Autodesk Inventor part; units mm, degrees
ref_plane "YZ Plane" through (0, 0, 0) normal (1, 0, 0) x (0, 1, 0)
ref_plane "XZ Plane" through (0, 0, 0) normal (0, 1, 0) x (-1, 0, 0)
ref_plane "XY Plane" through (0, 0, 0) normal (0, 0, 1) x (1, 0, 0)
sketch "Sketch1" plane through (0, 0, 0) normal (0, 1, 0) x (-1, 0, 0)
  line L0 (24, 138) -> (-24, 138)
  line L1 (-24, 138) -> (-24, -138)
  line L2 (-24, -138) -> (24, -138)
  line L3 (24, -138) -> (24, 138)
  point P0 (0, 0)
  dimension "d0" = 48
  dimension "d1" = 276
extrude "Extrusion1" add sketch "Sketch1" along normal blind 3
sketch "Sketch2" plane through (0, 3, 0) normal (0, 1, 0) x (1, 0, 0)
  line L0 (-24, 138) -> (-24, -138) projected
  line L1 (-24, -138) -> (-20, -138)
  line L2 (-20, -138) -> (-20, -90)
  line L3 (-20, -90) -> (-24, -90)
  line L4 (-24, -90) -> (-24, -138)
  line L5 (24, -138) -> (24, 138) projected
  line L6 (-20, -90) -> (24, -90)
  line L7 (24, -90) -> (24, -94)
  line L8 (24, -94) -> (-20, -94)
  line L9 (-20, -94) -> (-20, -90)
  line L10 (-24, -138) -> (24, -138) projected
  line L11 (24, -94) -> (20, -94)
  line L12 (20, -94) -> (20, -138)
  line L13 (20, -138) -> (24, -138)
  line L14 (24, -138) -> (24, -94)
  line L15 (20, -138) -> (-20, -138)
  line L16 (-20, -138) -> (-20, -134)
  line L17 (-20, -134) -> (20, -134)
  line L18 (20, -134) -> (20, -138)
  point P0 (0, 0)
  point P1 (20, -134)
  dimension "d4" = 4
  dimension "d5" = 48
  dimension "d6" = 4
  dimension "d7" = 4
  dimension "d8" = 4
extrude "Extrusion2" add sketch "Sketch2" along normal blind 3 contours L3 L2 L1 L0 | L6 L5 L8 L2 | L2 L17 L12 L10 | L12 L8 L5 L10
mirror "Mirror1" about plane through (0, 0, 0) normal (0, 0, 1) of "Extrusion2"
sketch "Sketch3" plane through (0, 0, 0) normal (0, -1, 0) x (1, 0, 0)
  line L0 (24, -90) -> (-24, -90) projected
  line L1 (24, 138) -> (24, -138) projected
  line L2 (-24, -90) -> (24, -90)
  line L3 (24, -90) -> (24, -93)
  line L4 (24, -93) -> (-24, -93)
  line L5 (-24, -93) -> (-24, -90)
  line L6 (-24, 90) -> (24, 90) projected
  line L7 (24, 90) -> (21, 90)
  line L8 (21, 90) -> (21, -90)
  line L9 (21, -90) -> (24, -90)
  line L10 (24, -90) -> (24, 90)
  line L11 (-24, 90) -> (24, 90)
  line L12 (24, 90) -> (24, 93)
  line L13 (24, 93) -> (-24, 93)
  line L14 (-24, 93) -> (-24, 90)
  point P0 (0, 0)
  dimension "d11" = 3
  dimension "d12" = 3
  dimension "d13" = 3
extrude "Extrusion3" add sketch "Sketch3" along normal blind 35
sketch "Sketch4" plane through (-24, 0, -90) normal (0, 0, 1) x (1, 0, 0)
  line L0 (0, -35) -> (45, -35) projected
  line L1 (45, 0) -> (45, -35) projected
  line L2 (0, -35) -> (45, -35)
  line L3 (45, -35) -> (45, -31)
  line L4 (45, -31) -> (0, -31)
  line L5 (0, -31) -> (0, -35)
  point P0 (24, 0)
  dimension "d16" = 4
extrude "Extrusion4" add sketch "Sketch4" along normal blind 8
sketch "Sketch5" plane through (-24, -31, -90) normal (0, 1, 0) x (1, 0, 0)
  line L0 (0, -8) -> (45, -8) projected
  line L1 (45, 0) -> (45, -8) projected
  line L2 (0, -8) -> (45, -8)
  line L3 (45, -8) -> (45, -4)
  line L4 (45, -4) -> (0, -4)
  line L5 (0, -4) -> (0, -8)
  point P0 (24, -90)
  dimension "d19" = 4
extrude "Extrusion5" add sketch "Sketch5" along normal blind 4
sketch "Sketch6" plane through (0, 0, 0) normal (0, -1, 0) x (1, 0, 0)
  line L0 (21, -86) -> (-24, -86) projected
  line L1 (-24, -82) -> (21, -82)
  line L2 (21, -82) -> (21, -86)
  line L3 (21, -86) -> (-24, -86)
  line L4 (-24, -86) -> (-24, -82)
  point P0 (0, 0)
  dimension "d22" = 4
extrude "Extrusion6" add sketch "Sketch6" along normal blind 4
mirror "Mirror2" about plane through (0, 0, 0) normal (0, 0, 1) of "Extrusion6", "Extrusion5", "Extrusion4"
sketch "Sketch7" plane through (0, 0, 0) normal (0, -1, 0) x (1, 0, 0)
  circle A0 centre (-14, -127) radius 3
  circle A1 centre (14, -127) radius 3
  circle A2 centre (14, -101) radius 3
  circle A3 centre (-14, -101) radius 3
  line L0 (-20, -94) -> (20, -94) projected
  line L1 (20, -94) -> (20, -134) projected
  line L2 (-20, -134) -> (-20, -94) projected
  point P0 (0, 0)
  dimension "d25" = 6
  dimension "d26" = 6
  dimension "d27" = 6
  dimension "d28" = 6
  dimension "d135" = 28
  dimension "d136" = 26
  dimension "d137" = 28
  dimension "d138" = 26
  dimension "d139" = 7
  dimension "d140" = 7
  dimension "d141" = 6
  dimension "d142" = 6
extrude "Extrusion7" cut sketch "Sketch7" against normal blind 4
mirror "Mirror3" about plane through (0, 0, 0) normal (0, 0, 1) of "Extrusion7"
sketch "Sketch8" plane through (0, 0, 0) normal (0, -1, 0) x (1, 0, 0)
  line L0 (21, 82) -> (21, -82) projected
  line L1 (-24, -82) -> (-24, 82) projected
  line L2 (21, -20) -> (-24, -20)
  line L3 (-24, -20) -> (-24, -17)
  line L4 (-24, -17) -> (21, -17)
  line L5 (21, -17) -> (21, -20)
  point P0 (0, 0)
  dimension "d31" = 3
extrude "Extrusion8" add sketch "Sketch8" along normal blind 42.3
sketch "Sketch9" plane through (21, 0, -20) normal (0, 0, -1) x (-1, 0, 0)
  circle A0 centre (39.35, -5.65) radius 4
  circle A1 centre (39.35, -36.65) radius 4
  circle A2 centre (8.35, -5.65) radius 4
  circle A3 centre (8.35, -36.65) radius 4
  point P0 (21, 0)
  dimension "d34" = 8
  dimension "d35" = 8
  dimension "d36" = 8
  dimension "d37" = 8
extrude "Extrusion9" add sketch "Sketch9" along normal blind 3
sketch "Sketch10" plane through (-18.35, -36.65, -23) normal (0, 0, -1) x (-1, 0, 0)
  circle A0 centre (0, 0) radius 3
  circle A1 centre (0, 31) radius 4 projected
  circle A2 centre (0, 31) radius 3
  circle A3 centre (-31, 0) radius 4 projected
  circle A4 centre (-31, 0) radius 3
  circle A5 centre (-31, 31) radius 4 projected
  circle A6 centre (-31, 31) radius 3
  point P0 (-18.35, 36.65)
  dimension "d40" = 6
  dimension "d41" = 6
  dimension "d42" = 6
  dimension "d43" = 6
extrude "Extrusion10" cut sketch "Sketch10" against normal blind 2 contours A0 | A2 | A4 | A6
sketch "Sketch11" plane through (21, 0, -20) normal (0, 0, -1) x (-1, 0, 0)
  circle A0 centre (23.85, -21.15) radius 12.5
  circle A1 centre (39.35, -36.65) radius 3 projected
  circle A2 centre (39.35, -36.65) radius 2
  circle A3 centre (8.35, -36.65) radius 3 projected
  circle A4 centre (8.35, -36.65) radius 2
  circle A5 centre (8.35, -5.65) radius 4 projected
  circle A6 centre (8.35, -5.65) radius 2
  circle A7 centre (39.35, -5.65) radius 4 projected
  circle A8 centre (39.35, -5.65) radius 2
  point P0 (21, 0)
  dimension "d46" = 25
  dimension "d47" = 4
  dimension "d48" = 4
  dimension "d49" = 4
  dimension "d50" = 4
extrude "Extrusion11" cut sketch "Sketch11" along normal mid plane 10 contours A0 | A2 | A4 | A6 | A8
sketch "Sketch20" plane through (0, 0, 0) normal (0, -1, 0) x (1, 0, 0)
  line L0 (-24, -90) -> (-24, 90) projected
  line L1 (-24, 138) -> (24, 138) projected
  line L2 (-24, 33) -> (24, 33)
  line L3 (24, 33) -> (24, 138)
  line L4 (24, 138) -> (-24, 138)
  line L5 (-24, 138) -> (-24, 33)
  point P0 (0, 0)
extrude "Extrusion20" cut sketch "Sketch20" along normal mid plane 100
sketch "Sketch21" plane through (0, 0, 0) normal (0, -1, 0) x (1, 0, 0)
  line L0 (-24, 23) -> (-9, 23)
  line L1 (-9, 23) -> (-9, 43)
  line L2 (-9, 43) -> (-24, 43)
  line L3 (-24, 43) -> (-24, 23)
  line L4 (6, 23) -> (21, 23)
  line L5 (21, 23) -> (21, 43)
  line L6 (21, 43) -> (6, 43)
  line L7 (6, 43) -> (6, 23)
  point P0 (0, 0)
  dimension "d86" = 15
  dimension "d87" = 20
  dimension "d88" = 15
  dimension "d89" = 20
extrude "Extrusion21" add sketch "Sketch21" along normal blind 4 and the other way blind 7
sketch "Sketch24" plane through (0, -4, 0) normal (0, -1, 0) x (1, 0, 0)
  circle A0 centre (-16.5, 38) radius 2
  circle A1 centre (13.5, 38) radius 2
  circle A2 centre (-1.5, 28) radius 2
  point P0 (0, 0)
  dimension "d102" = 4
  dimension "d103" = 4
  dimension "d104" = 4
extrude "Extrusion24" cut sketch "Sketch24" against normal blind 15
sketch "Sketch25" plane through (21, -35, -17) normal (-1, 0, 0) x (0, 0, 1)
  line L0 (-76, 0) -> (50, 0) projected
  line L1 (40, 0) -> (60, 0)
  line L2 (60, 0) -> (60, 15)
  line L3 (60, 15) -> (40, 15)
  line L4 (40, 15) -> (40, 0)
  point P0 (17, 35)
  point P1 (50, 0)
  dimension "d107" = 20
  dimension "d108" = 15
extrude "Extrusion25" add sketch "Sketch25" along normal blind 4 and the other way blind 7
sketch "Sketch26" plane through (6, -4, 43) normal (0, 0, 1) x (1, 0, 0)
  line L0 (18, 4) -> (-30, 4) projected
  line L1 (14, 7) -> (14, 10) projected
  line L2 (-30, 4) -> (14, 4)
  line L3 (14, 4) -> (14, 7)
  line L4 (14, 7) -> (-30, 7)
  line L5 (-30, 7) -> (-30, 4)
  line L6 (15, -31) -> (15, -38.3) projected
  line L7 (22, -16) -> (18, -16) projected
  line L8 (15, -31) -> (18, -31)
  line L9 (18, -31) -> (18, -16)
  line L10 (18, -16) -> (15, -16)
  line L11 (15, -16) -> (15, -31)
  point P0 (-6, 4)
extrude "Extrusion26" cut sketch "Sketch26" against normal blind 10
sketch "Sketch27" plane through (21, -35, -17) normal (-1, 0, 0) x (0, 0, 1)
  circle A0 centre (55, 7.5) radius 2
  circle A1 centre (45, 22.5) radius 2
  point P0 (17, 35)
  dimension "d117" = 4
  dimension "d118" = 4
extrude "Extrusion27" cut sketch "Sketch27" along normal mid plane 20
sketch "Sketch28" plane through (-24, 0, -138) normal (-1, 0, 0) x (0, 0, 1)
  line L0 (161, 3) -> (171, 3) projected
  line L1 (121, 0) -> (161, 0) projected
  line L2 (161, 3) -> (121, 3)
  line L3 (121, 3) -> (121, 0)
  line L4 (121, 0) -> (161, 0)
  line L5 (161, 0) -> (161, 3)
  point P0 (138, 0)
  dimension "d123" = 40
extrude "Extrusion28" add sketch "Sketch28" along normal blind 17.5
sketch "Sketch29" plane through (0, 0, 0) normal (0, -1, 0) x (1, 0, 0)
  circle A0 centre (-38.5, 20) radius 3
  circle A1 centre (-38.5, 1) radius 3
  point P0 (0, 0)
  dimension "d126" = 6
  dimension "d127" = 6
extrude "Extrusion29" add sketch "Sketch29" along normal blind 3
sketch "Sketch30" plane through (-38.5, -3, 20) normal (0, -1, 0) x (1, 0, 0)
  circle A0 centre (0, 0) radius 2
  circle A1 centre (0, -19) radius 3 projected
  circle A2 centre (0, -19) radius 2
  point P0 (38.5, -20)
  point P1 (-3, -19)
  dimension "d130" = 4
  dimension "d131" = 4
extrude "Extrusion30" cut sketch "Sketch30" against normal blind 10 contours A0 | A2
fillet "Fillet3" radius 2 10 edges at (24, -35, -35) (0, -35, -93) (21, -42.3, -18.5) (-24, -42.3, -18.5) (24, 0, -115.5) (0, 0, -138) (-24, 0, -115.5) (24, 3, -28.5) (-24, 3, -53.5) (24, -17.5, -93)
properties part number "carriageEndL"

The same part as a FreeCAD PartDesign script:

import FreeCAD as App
import Part
import Sketcher


def edges_at(feature, points):
    """Names of the edges that pass closest to the given points."""
    edges = feature.Shape.Edges
    near = lambda p: min(range(len(edges)), key=lambda i: edges[i].distToShape(Part.Vertex(*p))[0])
    return sorted({f"Edge{near(p) + 1}" for p in points})


def add_polygon(sketch, points):
    """Adds a closed chain of lines whose ends are joined by coincident constraints."""
    first, n = sketch.GeometryCount, len(points)
    for a, b in zip(points, points[1:] + points[:1]):
        sketch.addGeometry(Part.LineSegment(App.Vector(*a, 0), App.Vector(*b, 0)), False)
    for i in range(n):
        sketch.addConstraint(Sketcher.Constraint("Coincident", first + i, 2, first + (i + 1) % n, 1))

doc = App.newDocument("Part")
params = doc.addObject("Spreadsheet::Sheet", "Params")
for row, (alias, value) in enumerate([
    ("sketch1_width", "48 mm"),
    ("sketch1_height", "276 mm"),
    ("pad1_length", "3 mm"),
    ("sketch2_width", "48 mm"),
    ("pad2_length", "3 mm"),
    ("sketch3_height", "3 mm"),
    ("sketch3_width", "48 mm"),
    ("sketch3_height2", "186 mm"),
    ("pad3_length", "35 mm"),
    ("sketch4_height", "4 mm"),
    ("sketch4_width", "45 mm"),
    ("pad4_length", "8 mm"),
    ("sketch5_height", "4 mm"),
    ("sketch5_width", "45 mm"),
    ("pad5_length", "4 mm"),
    ("sketch6_height", "4 mm"),
    ("sketch6_width", "45 mm"),
    ("pad6_length", "4 mm"),
    ("sketch7_diameter", "6 mm"),
    ("pocket1_length", "4 mm"),
    ("sketch8_height", "3 mm"),
    ("sketch8_width", "45 mm"),
    ("pad7_length", "42.3 mm"),
    ("sketch9_diameter", "8 mm"),
    ("pad8_length", "3 mm"),
    ("sketch10_diameter", "6 mm"),
    ("pocket2_length", "2 mm"),
    ("sketch11_diameter", "25 mm"),
    ("sketch11_diameter2", "4 mm"),
    ("pocket3_length", "10 mm"),
    ("sketch12_width", "48 mm"),
    ("sketch12_height", "105 mm"),
    ("pocket4_length", "100 mm"),
    ("sketch13_width", "15 mm"),
    ("sketch13_height", "20 mm"),
    ("pad9_length", "4 mm"),
    ("pad9_length2", "7 mm"),
    ("sketch14_diameter", "4 mm"),
    ("pocket5_length", "15 mm"),
    ("sketch15_width", "15 mm"),
    ("sketch15_height", "20 mm"),
    ("pad10_length", "4 mm"),
    ("pad10_length2", "7 mm"),
    ("sketch16_width", "44 mm"),
    ("sketch16_width2", "3 mm"),
    ("sketch16_height", "15 mm"),
    ("pocket6_length", "10 mm"),
    ("sketch17_diameter", "4 mm"),
    ("pocket7_length", "20 mm"),
    ("sketch18_height", "40 mm"),
    ("sketch18_width", "3 mm"),
    ("pad11_length", "17.5 mm"),
    ("sketch19_diameter", "6 mm"),
    ("pad12_length", "3 mm"),
    ("sketch20_diameter", "4 mm"),
    ("pocket8_length", "10 mm"),
    ("fillet_radius", "2 mm"),
], start=1):
    params.set(f"A{row}", alias)
    params.set(f"B{row}", "=" + value)
    params.setAlias(f"B{row}", alias)

body = doc.addObject("PartDesign::Body", "Body")

# Sketch on XZ plane
sketch1 = body.newObject("Sketcher::SketchObject", "Sketch")
sketch1.AttachmentSupport = (doc.getObject("XZ_Plane"), [""])
sketch1.MapMode = "FlatFace"
add_polygon(sketch1, [(-24, -138), (-24, 138), (24, 138), (24, -138)])  # lines 0-3
sketch1.addConstraint([
    Sketcher.Constraint("Vertical", 0),
    Sketcher.Constraint("Horizontal", 1),
    Sketcher.Constraint("Vertical", 2),
    Sketcher.Constraint("Horizontal", 3),
    Sketcher.Constraint("Symmetric", 0, 2, 2, 2, -1, 1),
    Sketcher.Constraint("DistanceX", 1, 1, 1, 2, 48.0),
    Sketcher.Constraint("DistanceY", 0, 1, 0, 2, 276.0),
])
sketch1.setExpression("Constraints[9]", "Params.sketch1_width")
sketch1.setExpression("Constraints[10]", "Params.sketch1_height")
pad1 = body.newObject("PartDesign::Pad", "Pad")
pad1.Profile = sketch1
pad1.setExpression("Length", "Params.pad1_length")
pad1.Reversed = True

# Sketch on XZ plane
sketch2 = body.newObject("Sketcher::SketchObject", "Sketch001")
sketch2.AttachmentSupport = (doc.getObject("XZ_Plane"), [""])
sketch2.MapMode = "FlatFace"
sketch2.AttachmentOffset = App.Placement(App.Vector(0, 0, -3), App.Rotation())
add_polygon(sketch2, [(-24, 90), (-24, 138), (24, 138), (24, 90)])  # lines 0-3
add_polygon(sketch2, [(-20, 134), (-20, 94), (20, 94), (20, 134)])  # lines 4-7
sketch2.addConstraint([
    Sketcher.Constraint("Vertical", 0),
    Sketcher.Constraint("Horizontal", 1),
    Sketcher.Constraint("Vertical", 2),
    Sketcher.Constraint("Horizontal", 3),
    Sketcher.Constraint("Vertical", 4),
    Sketcher.Constraint("Horizontal", 5),
    Sketcher.Constraint("Vertical", 6),
    Sketcher.Constraint("Horizontal", 7),
    Sketcher.Constraint("Equal", 3, 0),
    Sketcher.Constraint("Equal", 7, 4),
    Sketcher.Constraint("DistanceX", 1, 1, 1, 2, 48.0),
    Sketcher.Constraint("DistanceX", 3, 2, 4, 2, 4.0),
    Sketcher.Constraint("DistanceY", 3, 2, 4, 2, 4.0),
    Sketcher.Constraint("DistanceX", 5, 2, 2, 2, 4.0),
    Sketcher.Constraint("DistanceX", 0, 2, -1, 1, 24.0),
    Sketcher.Constraint("DistanceY", -1, 1, 0, 2, 138.0),
])
sketch2.setExpression("Constraints[18]", "Params.sketch2_width")
pad2 = body.newObject("PartDesign::Pad", "Pad001")
pad2.Profile = sketch2
pad2.setExpression("Length", "Params.pad2_length")
pad2.Reversed = True
doc.recompute()

mirrored = body.newObject("PartDesign::Mirrored", "Mirrored")
mirrored.Originals = [pad2]
mirrored.MirrorPlane = (doc.getObject("XY_Plane"), [""])
body.Tip = mirrored

# Sketch on XZ plane
sketch3 = body.newObject("Sketcher::SketchObject", "Sketch002")
sketch3.AttachmentSupport = (doc.getObject("XZ_Plane"), [""])
sketch3.MapMode = "FlatFace"
add_polygon(sketch3, [(24, -93), (24, 93), (-24, 93), (-24, 90), (21, 90), (21, -90), (-24, -90), (-24, -93)])  # lines 0-7
sketch3.addConstraint([
    Sketcher.Constraint("Vertical", 0),
    Sketcher.Constraint("Horizontal", 1),
    Sketcher.Constraint("Vertical", 2),
    Sketcher.Constraint("Horizontal", 3),
    Sketcher.Constraint("Vertical", 4),
    Sketcher.Constraint("Horizontal", 5),
    Sketcher.Constraint("Vertical", 6),
    Sketcher.Constraint("Horizontal", 7),
    Sketcher.Constraint("Symmetric", 0, 2, 6, 2, -1, 1),
    Sketcher.Constraint("Symmetric", 2, 2, 5, 2, -1),
    Sketcher.Constraint("DistanceY", 2, 2, 2, 1, 3.0),
    Sketcher.Constraint("DistanceX", 3, 2, 0, 2, 3.0),
    Sketcher.Constraint("DistanceX", 1, 2, 1, 1, 48.0),
    Sketcher.Constraint("DistanceY", 0, 1, 0, 2, 186.0),
])
sketch3.setExpression("Constraints[18]", "Params.sketch3_height")
sketch3.setExpression("Constraints[20]", "Params.sketch3_width")
sketch3.setExpression("Constraints[21]", "Params.sketch3_height2")
pad3 = body.newObject("PartDesign::Pad", "Pad002")
pad3.Profile = sketch3
pad3.setExpression("Length", "Params.pad3_length")

# Sketch on XY plane
sketch4 = body.newObject("Sketcher::SketchObject", "Sketch003")
sketch4.AttachmentSupport = (doc.getObject("XY_Plane"), [""])
sketch4.MapMode = "FlatFace"
sketch4.AttachmentOffset = App.Placement(App.Vector(0, 0, -90), App.Rotation())
add_polygon(sketch4, [(-24, -31), (-24, -35), (21, -35), (21, -31)])  # lines 0-3
sketch4.addConstraint([
    Sketcher.Constraint("Vertical", 0),
    Sketcher.Constraint("Horizontal", 1),
    Sketcher.Constraint("Vertical", 2),
    Sketcher.Constraint("Horizontal", 3),
    Sketcher.Constraint("DistanceY", 0, 2, 0, 1, 4.0),
    Sketcher.Constraint("DistanceX", 1, 1, 1, 2, 45.0),
    Sketcher.Constraint("DistanceX", 0, 2, -1, 1, 24.0),
    Sketcher.Constraint("DistanceY", 0, 2, -1, 1, 35.0),
])
sketch4.setExpression("Constraints[8]", "Params.sketch4_height")
sketch4.setExpression("Constraints[9]", "Params.sketch4_width")
pad4 = body.newObject("PartDesign::Pad", "Pad003")
pad4.Profile = sketch4
pad4.setExpression("Length", "Params.pad4_length")

# Sketch on XZ plane
sketch5 = body.newObject("Sketcher::SketchObject", "Sketch004")
sketch5.AttachmentSupport = (doc.getObject("XZ_Plane"), [""])
sketch5.MapMode = "FlatFace"
sketch5.AttachmentOffset = App.Placement(App.Vector(0, 0, 31), App.Rotation())
add_polygon(sketch5, [(-24, -86), (-24, -82), (21, -82), (21, -86)])  # lines 0-3
sketch5.addConstraint([
    Sketcher.Constraint("Vertical", 0),
    Sketcher.Constraint("Horizontal", 1),
    Sketcher.Constraint("Vertical", 2),
    Sketcher.Constraint("Horizontal", 3),
    Sketcher.Constraint("DistanceY", 0, 1, 0, 2, 4.0),
    Sketcher.Constraint("DistanceX", 1, 1, 1, 2, 45.0),
    Sketcher.Constraint("DistanceX", 0, 2, -1, 1, 24.0),
    Sketcher.Constraint("DistanceY", 0, 2, -1, 1, 82.0),
])
sketch5.setExpression("Constraints[8]", "Params.sketch5_height")
sketch5.setExpression("Constraints[9]", "Params.sketch5_width")
pad5 = body.newObject("PartDesign::Pad", "Pad004")
pad5.Profile = sketch5
pad5.setExpression("Length", "Params.pad5_length")
pad5.Reversed = True

# Sketch on XZ plane
sketch6 = body.newObject("Sketcher::SketchObject", "Sketch005")
sketch6.AttachmentSupport = (doc.getObject("XZ_Plane"), [""])
sketch6.MapMode = "FlatFace"
add_polygon(sketch6, [(-24, -86), (21, -86), (21, -82), (-24, -82)])  # lines 0-3
sketch6.addConstraint([
    Sketcher.Constraint("Horizontal", 0),
    Sketcher.Constraint("Vertical", 1),
    Sketcher.Constraint("Horizontal", 2),
    Sketcher.Constraint("Vertical", 3),
    Sketcher.Constraint("DistanceY", 1, 1, 1, 2, 4.0),
    Sketcher.Constraint("DistanceX", 0, 1, 0, 2, 45.0),
    Sketcher.Constraint("DistanceX", -1, 1, 0, 2, 21.0),
    Sketcher.Constraint("DistanceY", 0, 2, -1, 1, 86.0),
])
sketch6.setExpression("Constraints[8]", "Params.sketch6_height")
sketch6.setExpression("Constraints[9]", "Params.sketch6_width")
pad6 = body.newObject("PartDesign::Pad", "Pad005")
pad6.Profile = sketch6
pad6.setExpression("Length", "Params.pad6_length")
doc.recompute()

mirrored2 = body.newObject("PartDesign::Mirrored", "Mirrored001")
mirrored2.Originals = [pad6, pad5, pad4]
mirrored2.MirrorPlane = (doc.getObject("XY_Plane"), [""])
body.Tip = mirrored2

# Sketch on XZ plane
sketch7 = body.newObject("Sketcher::SketchObject", "Sketch006")
sketch7.AttachmentSupport = (doc.getObject("XZ_Plane"), [""])
sketch7.MapMode = "FlatFace"
sketch7.addGeometry([
    Part.Circle(App.Vector(-14, -127, 0), App.Vector(0, 0, 1), 3),
    Part.Circle(App.Vector(14, -127, 0), App.Vector(0, 0, 1), 3),
    Part.Circle(App.Vector(14, -101, 0), App.Vector(0, 0, 1), 3),
    Part.Circle(App.Vector(-14, -101, 0), App.Vector(0, 0, 1), 3),
], False)
sketch7.addConstraint([
    Sketcher.Constraint("Equal", 0, 1),
    Sketcher.Constraint("Equal", 1, 2),
    Sketcher.Constraint("Equal", 2, 3),
    Sketcher.Constraint("Symmetric", 0, 3, 1, 3, -2),
    Sketcher.Constraint("Symmetric", 2, 3, 3, 3, -2),
    Sketcher.Constraint("Vertical", 1, 3, 2, 3),
    Sketcher.Constraint("Diameter", 0, 6.0),
    Sketcher.Constraint("DistanceX", 0, 3, 1, 3, 28.0),
    Sketcher.Constraint("DistanceY", 1, 3, 2, 3, 26.0),
    Sketcher.Constraint("DistanceY", 0, 3, -1, 1, 127.0),
])
sketch7.setExpression("Constraints[6]", "Params.sketch7_diameter")
pocket1 = body.newObject("PartDesign::Pocket", "Pocket")
pocket1.Profile = sketch7
pocket1.setExpression("Length", "Params.pocket1_length")
doc.recompute()

mirrored3 = body.newObject("PartDesign::Mirrored", "Mirrored002")
mirrored3.Originals = [pocket1]
mirrored3.MirrorPlane = (doc.getObject("XY_Plane"), [""])
body.Tip = mirrored3

# Sketch on XZ plane
sketch8 = body.newObject("Sketcher::SketchObject", "Sketch007")
sketch8.AttachmentSupport = (doc.getObject("XZ_Plane"), [""])
sketch8.MapMode = "FlatFace"
add_polygon(sketch8, [(21, -20), (21, -17), (-24, -17), (-24, -20)])  # lines 0-3
sketch8.addConstraint([
    Sketcher.Constraint("Vertical", 0),
    Sketcher.Constraint("Horizontal", 1),
    Sketcher.Constraint("Vertical", 2),
    Sketcher.Constraint("Horizontal", 3),
    Sketcher.Constraint("DistanceY", 0, 1, 0, 2, 3.0),
    Sketcher.Constraint("DistanceX", 1, 2, 1, 1, 45.0),
    Sketcher.Constraint("DistanceX", -1, 1, 0, 2, 21.0),
    Sketcher.Constraint("DistanceY", 0, 2, -1, 1, 17.0),
])
sketch8.setExpression("Constraints[8]", "Params.sketch8_height")
sketch8.setExpression("Constraints[9]", "Params.sketch8_width")
pad7 = body.newObject("PartDesign::Pad", "Pad006")
pad7.Profile = sketch8
pad7.setExpression("Length", "Params.pad7_length")

# Sketch on XY plane
sketch9 = body.newObject("Sketcher::SketchObject", "Sketch008")
sketch9.AttachmentSupport = (doc.getObject("XY_Plane"), [""])
sketch9.MapMode = "FlatFace"
sketch9.AttachmentOffset = App.Placement(App.Vector(0, 0, -20), App.Rotation())
sketch9.addGeometry([
    Part.Circle(App.Vector(-18.35, -5.65, 0), App.Vector(0, 0, 1), 4),
    Part.Circle(App.Vector(-18.35, -36.65, 0), App.Vector(0, 0, 1), 4),
    Part.Circle(App.Vector(12.65, -5.65, 0), App.Vector(0, 0, 1), 4),
    Part.Circle(App.Vector(12.65, -36.65, 0), App.Vector(0, 0, 1), 4),
], False)
sketch9.addConstraint([
    Sketcher.Constraint("Equal", 0, 1),
    Sketcher.Constraint("Equal", 1, 2),
    Sketcher.Constraint("Equal", 2, 3),
    Sketcher.Constraint("Horizontal", 0, 3, 2, 3),
    Sketcher.Constraint("Horizontal", 1, 3, 3, 3),
    Sketcher.Constraint("Vertical", 0, 3, 1, 3),
    Sketcher.Constraint("Vertical", 2, 3, 3, 3),
    Sketcher.Constraint("Diameter", 0, 8.0),
    Sketcher.Constraint("DistanceY", 1, 3, 0, 3, 31.0),
    Sketcher.Constraint("DistanceX", 0, 3, 2, 3, 31.0),
    Sketcher.Constraint("DistanceX", 0, 3, -1, 1, 18.35),
    Sketcher.Constraint("DistanceY", 0, 3, -1, 1, 5.65),
])
sketch9.setExpression("Constraints[7]", "Params.sketch9_diameter")
pad8 = body.newObject("PartDesign::Pad", "Pad007")
pad8.Profile = sketch9
pad8.setExpression("Length", "Params.pad8_length")
pad8.Reversed = True

# Sketch on XY plane
sketch10 = body.newObject("Sketcher::SketchObject", "Sketch009")
sketch10.AttachmentSupport = (doc.getObject("XY_Plane"), [""])
sketch10.MapMode = "FlatFace"
sketch10.AttachmentOffset = App.Placement(App.Vector(0, 0, -23), App.Rotation())
sketch10.addGeometry([
    Part.Circle(App.Vector(-18.35, -36.65, 0), App.Vector(0, 0, 1), 3),
    Part.Circle(App.Vector(-18.35, -5.65, 0), App.Vector(0, 0, 1), 3),
    Part.Circle(App.Vector(12.65, -36.65, 0), App.Vector(0, 0, 1), 3),
    Part.Circle(App.Vector(12.65, -5.65, 0), App.Vector(0, 0, 1), 3),
], False)
sketch10.addConstraint([
    Sketcher.Constraint("Equal", 0, 1),
    Sketcher.Constraint("Equal", 1, 2),
    Sketcher.Constraint("Equal", 2, 3),
    Sketcher.Constraint("Horizontal", 0, 3, 2, 3),
    Sketcher.Constraint("Horizontal", 1, 3, 3, 3),
    Sketcher.Constraint("Vertical", 0, 3, 1, 3),
    Sketcher.Constraint("Vertical", 2, 3, 3, 3),
    Sketcher.Constraint("Diameter", 0, 6.0),
    Sketcher.Constraint("DistanceY", 0, 3, 1, 3, 31.0),
    Sketcher.Constraint("DistanceX", 0, 3, 2, 3, 31.0),
    Sketcher.Constraint("DistanceX", 0, 3, -1, 1, 18.35),
    Sketcher.Constraint("DistanceY", 0, 3, -1, 1, 36.65),
])
sketch10.setExpression("Constraints[7]", "Params.sketch10_diameter")
pocket2 = body.newObject("PartDesign::Pocket", "Pocket001")
pocket2.Profile = sketch10
pocket2.setExpression("Length", "Params.pocket2_length")
pocket2.Reversed = True

# Sketch on XY plane
sketch11 = body.newObject("Sketcher::SketchObject", "Sketch010")
sketch11.AttachmentSupport = (doc.getObject("XY_Plane"), [""])
sketch11.MapMode = "FlatFace"
sketch11.AttachmentOffset = App.Placement(App.Vector(0, 0, -20), App.Rotation())
sketch11.addGeometry([
    Part.Circle(App.Vector(-2.85, -21.15, 0), App.Vector(0, 0, 1), 12.5),  # 0
    Part.Circle(App.Vector(-18.35, -36.65, 0), App.Vector(0, 0, 1), 2),  # 1
    Part.Circle(App.Vector(12.65, -36.65, 0), App.Vector(0, 0, 1), 2),  # 2
    Part.Circle(App.Vector(12.65, -5.65, 0), App.Vector(0, 0, 1), 2),  # 3
    Part.Circle(App.Vector(-18.35, -5.65, 0), App.Vector(0, 0, 1), 2),  # 4
], False)
sketch11.addConstraint([
    Sketcher.Constraint("Equal", 1, 2),
    Sketcher.Constraint("Equal", 2, 3),
    Sketcher.Constraint("Equal", 3, 4),
    Sketcher.Constraint("Horizontal", 1, 3, 2, 3),
    Sketcher.Constraint("Horizontal", 3, 3, 4, 3),
    Sketcher.Constraint("Vertical", 2, 3, 3, 3),
    Sketcher.Constraint("Vertical", 1, 3, 4, 3),
    Sketcher.Constraint("Diameter", 0, 25.0),
    Sketcher.Constraint("Diameter", 1, 4.0),
    Sketcher.Constraint("DistanceX", 1, 3, 2, 3, 31.0),
    Sketcher.Constraint("DistanceY", 2, 3, 3, 3, 31.0),
    Sketcher.Constraint("DistanceX", 1, 3, 0, 3, 15.5),
    Sketcher.Constraint("DistanceY", 1, 3, 0, 3, 15.5),
    Sketcher.Constraint("DistanceX", 0, 3, -1, 1, 2.85),
    Sketcher.Constraint("DistanceY", 0, 3, -1, 1, 21.15),
])
sketch11.setExpression("Constraints[7]", "Params.sketch11_diameter")
sketch11.setExpression("Constraints[8]", "Params.sketch11_diameter2")
pocket3 = body.newObject("PartDesign::Pocket", "Pocket002")
pocket3.Profile = sketch11
pocket3.setExpression("Length", "Params.pocket3_length")
pocket3.Midplane = True

# Sketch on XZ plane
sketch12 = body.newObject("Sketcher::SketchObject", "Sketch011")
sketch12.AttachmentSupport = (doc.getObject("XZ_Plane"), [""])
sketch12.MapMode = "FlatFace"
add_polygon(sketch12, [(-24, 138), (-24, 33), (24, 33), (24, 138)])  # lines 0-3
sketch12.addConstraint([
    Sketcher.Constraint("Vertical", 0),
    Sketcher.Constraint("Horizontal", 1),
    Sketcher.Constraint("Vertical", 2),
    Sketcher.Constraint("Horizontal", 3),
    Sketcher.Constraint("DistanceX", 1, 1, 1, 2, 48.0),
    Sketcher.Constraint("DistanceY", 0, 2, 0, 1, 105.0),
    Sketcher.Constraint("DistanceX", 0, 2, -1, 1, 24.0),
    Sketcher.Constraint("DistanceY", -1, 1, 0, 2, 33.0),
])
sketch12.setExpression("Constraints[8]", "Params.sketch12_width")
sketch12.setExpression("Constraints[9]", "Params.sketch12_height")
pocket4 = body.newObject("PartDesign::Pocket", "Pocket003")
pocket4.Profile = sketch12
pocket4.setExpression("Length", "Params.pocket4_length")
pocket4.Midplane = True

# Sketch on XZ plane
sketch13 = body.newObject("Sketcher::SketchObject", "Sketch012")
sketch13.AttachmentSupport = (doc.getObject("XZ_Plane"), [""])
sketch13.MapMode = "FlatFace"
add_polygon(sketch13, [(-24, 43), (-24, 23), (-9, 23), (-9, 43)])  # lines 0-3
add_polygon(sketch13, [(6, 43), (6, 23), (21, 23), (21, 43)])  # lines 4-7
sketch13.addConstraint([
    Sketcher.Constraint("Vertical", 0),
    Sketcher.Constraint("Horizontal", 1),
    Sketcher.Constraint("Vertical", 2),
    Sketcher.Constraint("Horizontal", 3),
    Sketcher.Constraint("Vertical", 4),
    Sketcher.Constraint("Horizontal", 5),
    Sketcher.Constraint("Vertical", 6),
    Sketcher.Constraint("Horizontal", 7),
    Sketcher.Constraint("Horizontal", 1, 2, 4, 2),
    Sketcher.Constraint("Horizontal", 3, 2, 6, 2),
    Sketcher.Constraint("Equal", 3, 5),
    Sketcher.Constraint("DistanceX", 1, 1, 1, 2, 15.0),
    Sketcher.Constraint("DistanceY", 0, 2, 0, 1, 20.0),
    Sketcher.Constraint("DistanceX", 1, 2, 4, 2, 15.0),
    Sketcher.Constraint("DistanceX", 0, 2, -1, 1, 24.0),
    Sketcher.Constraint("DistanceY", -1, 1, 0, 2, 23.0),
])
sketch13.setExpression("Constraints[19]", "Params.sketch13_width")
sketch13.setExpression("Constraints[20]", "Params.sketch13_height")
pad9 = body.newObject("PartDesign::Pad", "Pad008")
pad9.Profile = sketch13
pad9.Type = "TwoLengths"
pad9.setExpression("Length", "Params.pad9_length")
pad9.setExpression("Length2", "Params.pad9_length2")

# Sketch on XZ plane
sketch14 = body.newObject("Sketcher::SketchObject", "Sketch013")
sketch14.AttachmentSupport = (doc.getObject("XZ_Plane"), [""])
sketch14.MapMode = "FlatFace"
sketch14.AttachmentOffset = App.Placement(App.Vector(0, 0, 4), App.Rotation())
sketch14.addGeometry([
    Part.Circle(App.Vector(-16.5, 38, 0), App.Vector(0, 0, 1), 2),
    Part.Circle(App.Vector(13.5, 38, 0), App.Vector(0, 0, 1), 2),
    Part.Circle(App.Vector(-1.5, 28, 0), App.Vector(0, 0, 1), 2),
], False)
sketch14.addConstraint([
    Sketcher.Constraint("Equal", 0, 1),
    Sketcher.Constraint("Equal", 1, 2),
    Sketcher.Constraint("Horizontal", 0, 3, 1, 3),
    Sketcher.Constraint("Diameter", 0, 4.0),
    Sketcher.Constraint("DistanceY", -1, 1, 0, 3, 38.0),
    Sketcher.Constraint("DistanceY", -1, 1, 2, 3, 28.0),
    Sketcher.Constraint("DistanceX", 0, 3, 1, 3, 30.0),
    Sketcher.Constraint("DistanceX", 0, 3, 2, 3, 15.0),
    Sketcher.Constraint("DistanceX", 0, 3, -1, 1, 16.5),
])
sketch14.setExpression("Constraints[3]", "Params.sketch14_diameter")
pocket5 = body.newObject("PartDesign::Pocket", "Pocket004")
pocket5.Profile = sketch14
pocket5.setExpression("Length", "Params.pocket5_length")

# Sketch on YZ plane
sketch15 = body.newObject("Sketcher::SketchObject", "Sketch014")
sketch15.AttachmentSupport = (doc.getObject("YZ_Plane"), [""])
sketch15.MapMode = "FlatFace"
sketch15.AttachmentOffset = App.Placement(App.Vector(0, 0, 21), App.Rotation())
add_polygon(sketch15, [(-20, 23), (-35, 23), (-35, 43), (-20, 43)])  # lines 0-3
sketch15.addConstraint([
    Sketcher.Constraint("Horizontal", 0),
    Sketcher.Constraint("Vertical", 1),
    Sketcher.Constraint("Horizontal", 2),
    Sketcher.Constraint("Vertical", 3),
    Sketcher.Constraint("DistanceX", 0, 2, 0, 1, 15.0),
    Sketcher.Constraint("DistanceY", 1, 1, 1, 2, 20.0),
    Sketcher.Constraint("DistanceX", 2, 2, -1, 1, 20.0),
    Sketcher.Constraint("DistanceY", -1, 1, 0, 2, 23.0),
])
sketch15.setExpression("Constraints[8]", "Params.sketch15_width")
sketch15.setExpression("Constraints[9]", "Params.sketch15_height")
pad10 = body.newObject("PartDesign::Pad", "Pad009")
pad10.Profile = sketch15
pad10.Type = "TwoLengths"
pad10.setExpression("Length", "Params.pad10_length")
pad10.setExpression("Length2", "Params.pad10_length2")
pad10.Reversed = True

# Sketch on XY plane
sketch16 = body.newObject("Sketcher::SketchObject", "Sketch015")
sketch16.AttachmentSupport = (doc.getObject("XY_Plane"), [""])
sketch16.MapMode = "FlatFace"
sketch16.AttachmentOffset = App.Placement(App.Vector(0, 0, 43), App.Rotation())
add_polygon(sketch16, [(-24, 0), (20, 0), (20, 3), (-24, 3)])  # lines 0-3
add_polygon(sketch16, [(21, -20), (21, -35), (24, -35), (24, -20)])  # lines 4-7
sketch16.addConstraint([
    Sketcher.Constraint("Horizontal", 0),
    Sketcher.Constraint("Vertical", 1),
    Sketcher.Constraint("Horizontal", 2),
    Sketcher.Constraint("Vertical", 3),
    Sketcher.Constraint("Vertical", 4),
    Sketcher.Constraint("Horizontal", 5),
    Sketcher.Constraint("Vertical", 6),
    Sketcher.Constraint("Horizontal", 7),
    Sketcher.Constraint("PointOnObject", 0, 2, -1),
    Sketcher.Constraint("Equal", 7, 1),
    Sketcher.Constraint("DistanceX", 0, 1, 0, 2, 44.0),
    Sketcher.Constraint("DistanceX", 5, 1, 5, 2, 3.0),
    Sketcher.Constraint("DistanceY", 4, 2, 4, 1, 15.0),
    Sketcher.Constraint("DistanceX", -1, 1, 0, 2, 20.0),
    Sketcher.Constraint("DistanceX", -1, 1, 4, 2, 21.0),
    Sketcher.Constraint("DistanceY", 4, 2, -1, 1, 35.0),
])
sketch16.setExpression("Constraints[18]", "Params.sketch16_width")
sketch16.setExpression("Constraints[19]", "Params.sketch16_width2")
sketch16.setExpression("Constraints[20]", "Params.sketch16_height")
pocket6 = body.newObject("PartDesign::Pocket", "Pocket005")
pocket6.Profile = sketch16
pocket6.setExpression("Length", "Params.pocket6_length")

# Sketch on YZ plane
sketch17 = body.newObject("Sketcher::SketchObject", "Sketch016")
sketch17.AttachmentSupport = (doc.getObject("YZ_Plane"), [""])
sketch17.MapMode = "FlatFace"
sketch17.AttachmentOffset = App.Placement(App.Vector(0, 0, 21), App.Rotation())
sketch17.addGeometry([
    Part.Circle(App.Vector(-27.5, 38, 0), App.Vector(0, 0, 1), 2),
    Part.Circle(App.Vector(-12.5, 28, 0), App.Vector(0, 0, 1), 2),
], False)
sketch17.addConstraint([
    Sketcher.Constraint("Equal", 0, 1),
    Sketcher.Constraint("Diameter", 0, 4.0),
    Sketcher.Constraint("DistanceY", -1, 1, 0, 3, 38.0),
    Sketcher.Constraint("DistanceY", -1, 1, 1, 3, 28.0),
    Sketcher.Constraint("DistanceX", 0, 3, 1, 3, 15.0),
    Sketcher.Constraint("DistanceX", 0, 3, -1, 1, 27.5),
])
sketch17.setExpression("Constraints[1]", "Params.sketch17_diameter")
pocket7 = body.newObject("PartDesign::Pocket", "Pocket006")
pocket7.Profile = sketch17
pocket7.setExpression("Length", "Params.pocket7_length")
pocket7.Midplane = True

# Sketch on YZ plane
sketch18 = body.newObject("Sketcher::SketchObject", "Sketch017")
sketch18.AttachmentSupport = (doc.getObject("YZ_Plane"), [""])
sketch18.MapMode = "FlatFace"
sketch18.AttachmentOffset = App.Placement(App.Vector(0, 0, -24), App.Rotation())
add_polygon(sketch18, [(3, -17), (0, -17), (0, 23), (3, 23)])  # lines 0-3
sketch18.addConstraint([
    Sketcher.Constraint("Horizontal", 0),
    Sketcher.Constraint("Vertical", 1),
    Sketcher.Constraint("Horizontal", 2),
    Sketcher.Constraint("Vertical", 3),
    Sketcher.Constraint("PointOnObject", 0, 2, -2),
    Sketcher.Constraint("DistanceY", 1, 1, 1, 2, 40.0),
    Sketcher.Constraint("DistanceX", 0, 2, 0, 1, 3.0),
    Sketcher.Constraint("DistanceY", 0, 2, -1, 1, 17.0),
])
sketch18.setExpression("Constraints[9]", "Params.sketch18_height")
sketch18.setExpression("Constraints[10]", "Params.sketch18_width")
pad11 = body.newObject("PartDesign::Pad", "Pad010")
pad11.Profile = sketch18
pad11.setExpression("Length", "Params.pad11_length")
pad11.Reversed = True

# Sketch on XZ plane
sketch19 = body.newObject("Sketcher::SketchObject", "Sketch018")
sketch19.AttachmentSupport = (doc.getObject("XZ_Plane"), [""])
sketch19.MapMode = "FlatFace"
sketch19.addGeometry([
    Part.Circle(App.Vector(-38.5, 20, 0), App.Vector(0, 0, 1), 3),
    Part.Circle(App.Vector(-38.5, 1, 0), App.Vector(0, 0, 1), 3),
], False)
sketch19.addConstraint([
    Sketcher.Constraint("Equal", 0, 1),
    Sketcher.Constraint("Vertical", 0, 3, 1, 3),
    Sketcher.Constraint("Diameter", 0, 6.0),
    Sketcher.Constraint("DistanceY", -1, 1, 0, 3, 20.0),
    Sketcher.Constraint("DistanceY", -1, 1, 1, 3, 1.0),
    Sketcher.Constraint("DistanceX", 0, 3, -1, 1, 38.5),
])
sketch19.setExpression("Constraints[2]", "Params.sketch19_diameter")
pad12 = body.newObject("PartDesign::Pad", "Pad011")
pad12.Profile = sketch19
pad12.setExpression("Length", "Params.pad12_length")

# Sketch on XZ plane
sketch20 = body.newObject("Sketcher::SketchObject", "Sketch019")
sketch20.AttachmentSupport = (doc.getObject("XZ_Plane"), [""])
sketch20.MapMode = "FlatFace"
sketch20.AttachmentOffset = App.Placement(App.Vector(0, 0, 3), App.Rotation())
sketch20.addGeometry([
    Part.Circle(App.Vector(-38.5, 20, 0), App.Vector(0, 0, 1), 2),
    Part.Circle(App.Vector(-38.5, 1, 0), App.Vector(0, 0, 1), 2),
], False)
sketch20.addConstraint([
    Sketcher.Constraint("Equal", 0, 1),
    Sketcher.Constraint("Vertical", 0, 3, 1, 3),
    Sketcher.Constraint("Diameter", 0, 4.0),
    Sketcher.Constraint("DistanceY", -1, 1, 0, 3, 20.0),
    Sketcher.Constraint("DistanceY", -1, 1, 1, 3, 1.0),
    Sketcher.Constraint("DistanceX", 0, 3, -1, 1, 38.5),
])
sketch20.setExpression("Constraints[2]", "Params.sketch20_diameter")
pocket8 = body.newObject("PartDesign::Pocket", "Pocket007")
pocket8.Profile = sketch20
pocket8.setExpression("Length", "Params.pocket8_length")
doc.recompute()

fillet = body.newObject("PartDesign::Fillet", "Fillet")
fillet.Base = (pocket8, edges_at(pocket8, [
    (24, -35, -35),
    (0, -35, -93),
    (21, -42.3, -18.5),
    (-24, -42.3, -18.5),
    (24, 0, -115.5),
    (0, 0, -138),
    (-24, 0, -115.5),
    (24, 3, -28.5),
    (-24, 3, -53.5),
    (24, -17.5, -93),
]))
fillet.setExpression("Radius", "Params.fillet_radius")

doc.recompute()
